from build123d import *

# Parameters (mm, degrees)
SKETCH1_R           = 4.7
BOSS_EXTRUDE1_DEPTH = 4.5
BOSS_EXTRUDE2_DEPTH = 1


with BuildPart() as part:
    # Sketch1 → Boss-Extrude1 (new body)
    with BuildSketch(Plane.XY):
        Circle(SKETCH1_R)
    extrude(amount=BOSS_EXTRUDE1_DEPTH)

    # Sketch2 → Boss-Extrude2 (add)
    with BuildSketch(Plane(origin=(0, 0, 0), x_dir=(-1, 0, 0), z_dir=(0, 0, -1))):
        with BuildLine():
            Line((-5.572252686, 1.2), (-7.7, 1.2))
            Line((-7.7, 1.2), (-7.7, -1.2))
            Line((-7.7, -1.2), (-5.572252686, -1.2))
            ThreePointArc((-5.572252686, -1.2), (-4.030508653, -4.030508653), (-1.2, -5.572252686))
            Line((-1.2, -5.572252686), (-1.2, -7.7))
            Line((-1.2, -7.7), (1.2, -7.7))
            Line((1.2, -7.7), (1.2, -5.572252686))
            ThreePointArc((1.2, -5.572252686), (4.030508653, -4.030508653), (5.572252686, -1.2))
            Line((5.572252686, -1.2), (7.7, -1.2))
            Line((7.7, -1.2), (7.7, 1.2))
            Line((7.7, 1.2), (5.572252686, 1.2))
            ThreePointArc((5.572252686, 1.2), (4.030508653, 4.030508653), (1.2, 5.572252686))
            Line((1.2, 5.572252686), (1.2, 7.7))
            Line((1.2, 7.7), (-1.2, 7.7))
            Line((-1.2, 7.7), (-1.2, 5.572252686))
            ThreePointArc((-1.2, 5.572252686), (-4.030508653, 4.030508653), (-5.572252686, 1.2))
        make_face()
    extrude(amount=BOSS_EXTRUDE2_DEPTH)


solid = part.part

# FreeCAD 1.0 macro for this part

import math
import FreeCAD as App
import Part
import Sketcher

V = App.Vector
Q = App.Units.Quantity

doc = App.newDocument("Part")
body = doc.addObject("PartDesign::Body", "Body")

# Sketch on XY plane
sketch1 = body.newObject("Sketcher::SketchObject", "Sketch")
sketch1.AttachmentSupport = (doc.getObject("XY_Plane"), [""])
sketch1.MapMode = "FlatFace"
sketch1.addGeometry(Part.Circle(V(0, 0, 0), V(0, 0, 1), 4.7), False)
sketch1.addConstraint([
    Sketcher.Constraint("Coincident", 0, 3, -1, 1),
    Sketcher.Constraint("Diameter", 0, Q("9.4 mm")),
])
pad1 = body.newObject("PartDesign::Pad", "Pad")
pad1.Profile = sketch1
pad1.Length = 4.5

# Sketch on XY plane
sketch2 = body.newObject("Sketcher::SketchObject", "Sketch001")
sketch2.AttachmentSupport = (doc.getObject("XY_Plane"), [""])
sketch2.MapMode = "FlatFace"
sketch2.addGeometry([
    Part.LineSegment(V(5.6, 1.2, 0), V(7.7, 1.2, 0)),  # 0
    Part.LineSegment(V(7.7, 1.2, 0), V(7.7, -1.2, 0)),  # 1
    Part.LineSegment(V(7.7, -1.2, 0), V(5.6, -1.2, 0)),  # 2
    Part.ArcOfCircle(Part.Circle(V(0, 0, 0), V(0, 0, 1), 5.7), math.radians(-78), math.radians(-12)),  # 3
    Part.LineSegment(V(1.2, -5.6, 0), V(1.2, -7.7, 0)),  # 4
    Part.LineSegment(V(1.2, -7.7, 0), V(-1.2, -7.7, 0)),  # 5
    Part.LineSegment(V(-1.2, -7.7, 0), V(-1.2, -5.6, 0)),  # 6
    Part.ArcOfCircle(Part.Circle(V(0, 0, 0), V(0, 0, 1), 5.7), math.radians(-168), math.radians(-102)),  # 7
    Part.LineSegment(V(-5.6, -1.2, 0), V(-7.7, -1.2, 0)),  # 8
    Part.LineSegment(V(-7.7, -1.2, 0), V(-7.7, 1.2, 0)),  # 9
    Part.LineSegment(V(-7.7, 1.2, 0), V(-5.6, 1.2, 0)),  # 10
    Part.ArcOfCircle(Part.Circle(V(0, 0, 0), V(0, 0, 1), 5.7), math.radians(102), math.radians(168)),  # 11
    Part.LineSegment(V(-1.2, 5.6, 0), V(-1.2, 7.7, 0)),  # 12
    Part.LineSegment(V(-1.2, 7.7, 0), V(1.2, 7.7, 0)),  # 13
    Part.LineSegment(V(1.2, 7.7, 0), V(1.2, 5.6, 0)),  # 14
    Part.ArcOfCircle(Part.Circle(V(0, 0, 0), V(0, 0, 1), 5.7), math.radians(12), math.radians(78)),  # 15
], False)
sketch2.addConstraint([
    Sketcher.Constraint("Coincident", 0, 2, 1, 1),
    Sketcher.Constraint("Coincident", 1, 2, 2, 1),
    Sketcher.Constraint("Coincident", 2, 2, 3, 2),
    Sketcher.Constraint("Coincident", 3, 1, 4, 1),
    Sketcher.Constraint("Coincident", 4, 2, 5, 1),
    Sketcher.Constraint("Coincident", 5, 2, 6, 1),
    Sketcher.Constraint("Coincident", 6, 2, 7, 2),
    Sketcher.Constraint("Coincident", 7, 1, 8, 1),
    Sketcher.Constraint("Coincident", 8, 2, 9, 1),
    Sketcher.Constraint("Coincident", 9, 2, 10, 1),
    Sketcher.Constraint("Coincident", 10, 2, 11, 2),
    Sketcher.Constraint("Coincident", 11, 1, 12, 1),
    Sketcher.Constraint("Coincident", 12, 2, 13, 1),
    Sketcher.Constraint("Coincident", 13, 2, 14, 1),
    Sketcher.Constraint("Coincident", 14, 2, 15, 2),
    Sketcher.Constraint("Coincident", 15, 1, 0, 1),
    Sketcher.Constraint("Horizontal", 0),
    Sketcher.Constraint("Vertical", 1),
    Sketcher.Constraint("Horizontal", 2),
    Sketcher.Constraint("Vertical", 4),
    Sketcher.Constraint("Horizontal", 5),
    Sketcher.Constraint("Vertical", 6),
    Sketcher.Constraint("Horizontal", 8),
    Sketcher.Constraint("Vertical", 9),
    Sketcher.Constraint("Horizontal", 10),
    Sketcher.Constraint("Vertical", 12),
    Sketcher.Constraint("Horizontal", 13),
    Sketcher.Constraint("Vertical", 14),
    Sketcher.Constraint("Coincident", 3, 3, -1, 1),
    Sketcher.Constraint("Coincident", 7, 3, -1, 1),
    Sketcher.Constraint("Coincident", 11, 3, -1, 1),
    Sketcher.Constraint("Coincident", 15, 3, -1, 1),
    Sketcher.Constraint("Equal", 3, 7),
    Sketcher.Constraint("Equal", 7, 11),
    Sketcher.Constraint("Equal", 11, 15),
    Sketcher.Constraint("Symmetric", 0, 2, 8, 2, -1, 1),
    Sketcher.Constraint("Symmetric", 4, 2, 12, 2, -1, 1),
    Sketcher.Constraint("Horizontal", 3, 1, 6, 2),
    Sketcher.Constraint("Horizontal", 2, 2, 7, 1),
    Sketcher.Constraint("Horizontal", 0, 2, 9, 2),
    Sketcher.Constraint("Horizontal", 11, 1, 14, 2),
    Sketcher.Constraint("Equal", 13, 1),
    Sketcher.Constraint("Equal", 10, 4),
    Sketcher.Constraint("Radius", 3, Q("5.7 mm")),
    Sketcher.Constraint("DistanceX", 5, 2, 5, 1, Q("2.4 mm")),
    Sketcher.Constraint("DistanceX", -1, 1, 0, 2, Q("7.7 mm")),
])
pad2 = body.newObject("PartDesign::Pad", "Pad001")
pad2.Profile = sketch2
pad2.Length = 1
pad2.Reversed = True

doc.recompute()
